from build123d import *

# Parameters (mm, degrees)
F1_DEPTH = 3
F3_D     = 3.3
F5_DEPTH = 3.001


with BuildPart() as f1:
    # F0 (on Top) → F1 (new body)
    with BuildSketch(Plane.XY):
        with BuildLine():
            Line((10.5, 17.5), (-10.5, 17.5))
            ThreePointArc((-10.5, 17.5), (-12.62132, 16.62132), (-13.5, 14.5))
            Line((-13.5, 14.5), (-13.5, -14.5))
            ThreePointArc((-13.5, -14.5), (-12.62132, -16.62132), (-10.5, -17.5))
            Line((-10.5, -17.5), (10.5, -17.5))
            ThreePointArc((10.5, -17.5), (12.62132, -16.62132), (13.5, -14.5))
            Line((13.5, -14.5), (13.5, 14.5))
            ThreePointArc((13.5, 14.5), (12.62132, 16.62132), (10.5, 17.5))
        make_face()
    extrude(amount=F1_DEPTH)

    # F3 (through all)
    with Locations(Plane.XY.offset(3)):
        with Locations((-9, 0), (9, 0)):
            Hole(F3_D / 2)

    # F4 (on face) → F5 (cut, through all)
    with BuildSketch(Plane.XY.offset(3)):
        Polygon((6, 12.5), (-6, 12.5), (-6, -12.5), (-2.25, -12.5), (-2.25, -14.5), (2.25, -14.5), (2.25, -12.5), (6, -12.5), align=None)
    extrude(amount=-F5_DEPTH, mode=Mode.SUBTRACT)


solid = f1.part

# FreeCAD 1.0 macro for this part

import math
import FreeCAD as App
import Part
import Sketcher
Q = App.Units.Quantity


def add_polygon(sketch, points):
    """Adds a closed chain of lines whose ends are joined by coincident constraints."""
    first, n = sketch.GeometryCount, len(points)
    for a, b in zip(points, points[1:] + points[:1]):
        sketch.addGeometry(Part.LineSegment(App.Vector(*a, 0), App.Vector(*b, 0)), False)
    for i in range(n):
        sketch.addConstraint(Sketcher.Constraint("Coincident", first + i, 2, first + (i + 1) % n, 1))

doc = App.newDocument("Part")
body = doc.addObject("PartDesign::Body", "Body")

# Sketch on XY plane
sketch1 = doc.addObject("Sketcher::SketchObject", "Sketch")
body.addObject(sketch1)
sketch1.AttachmentSupport = (doc.XY_Plane, [""])
sketch1.MapMode = "FlatFace"
sketch1.addGeometry([
    Part.LineSegment(App.Vector(10.5, 17.5, 0), App.Vector(-10.5, 17.5, 0)),  # 0
    Part.ArcOfCircle(Part.Circle(App.Vector(-10.5, 14.5, 0), App.Vector(0, 0, 1), 3), math.radians(90), math.radians(180)),  # 1
    Part.LineSegment(App.Vector(-13.5, 14.5, 0), App.Vector(-13.5, -14.5, 0)),  # 2
    Part.ArcOfCircle(Part.Circle(App.Vector(-10.5, -14.5, 0), App.Vector(0, 0, 1), 3), math.radians(-180), math.radians(-90)),  # 3
    Part.LineSegment(App.Vector(-10.5, -17.5, 0), App.Vector(10.5, -17.5, 0)),  # 4
    Part.ArcOfCircle(Part.Circle(App.Vector(10.5, -14.5, 0), App.Vector(0, 0, 1), 3), math.radians(-90), math.radians(0)),  # 5
    Part.LineSegment(App.Vector(13.5, -14.5, 0), App.Vector(13.5, 14.5, 0)),  # 6
    Part.ArcOfCircle(Part.Circle(App.Vector(10.5, 14.5, 0), App.Vector(0, 0, 1), 3), math.radians(0), math.radians(90)),  # 7
], False)
sketch1.addConstraint([
    Sketcher.Constraint("Tangent", 0, 2, 1, 1),
    Sketcher.Constraint("Tangent", 1, 2, 2, 1),
    Sketcher.Constraint("Tangent", 2, 2, 3, 1),
    Sketcher.Constraint("Tangent", 3, 2, 4, 1),
    Sketcher.Constraint("Tangent", 4, 2, 5, 1),
    Sketcher.Constraint("Tangent", 5, 2, 6, 1),
    Sketcher.Constraint("Tangent", 6, 2, 7, 1),
    Sketcher.Constraint("Tangent", 7, 2, 0, 1),
    Sketcher.Constraint("Horizontal", 0),
    Sketcher.Constraint("Vertical", 2),
    Sketcher.Constraint("Horizontal", 4),
    Sketcher.Constraint("Vertical", 6),
    Sketcher.Constraint("Equal", 1, 3),
    Sketcher.Constraint("Equal", 3, 5),
    Sketcher.Constraint("Equal", 5, 7),
    Sketcher.Constraint("Symmetric", 1, 3, 5, 3, -1, 1),
    Sketcher.Constraint("Radius", 1, Q("3.000001 mm")),
    Sketcher.Constraint("DistanceX", 0, 2, 0, 1, Q("21 mm")),
    Sketcher.Constraint("DistanceY", 2, 2, 2, 1, Q("29 mm")),
])
pad1 = doc.addObject("PartDesign::Pad", "Pad")
body.addObject(pad1)
pad1.Profile = sketch1
pad1.Length = 3

# Sketch on XY plane
sketch2 = doc.addObject("Sketcher::SketchObject", "Sketch001")
body.addObject(sketch2)
sketch2.AttachmentSupport = (doc.XY_Plane, [""])
sketch2.MapMode = "FlatFace"
sketch2.AttachmentOffset = App.Placement(App.Vector(0, 0, 3), App.Rotation())
sketch2.addGeometry([
    Part.Circle(App.Vector(-9, 0, 0), App.Vector(0, 0, 1), 1.6),
    Part.Circle(App.Vector(9, 0, 0), App.Vector(0, 0, 1), 1.6),
], False)
sketch2.addConstraint([
    Sketcher.Constraint("Equal", 0, 1),
    Sketcher.Constraint("Symmetric", 0, 3, 1, 3, -1, 1),
    Sketcher.Constraint("PointOnObject", 0, 3, -1),
    Sketcher.Constraint("Diameter", 0, Q("3.3 mm")),
    Sketcher.Constraint("DistanceX", 0, 3, -1, 1, Q("9 mm")),
])
doc.recompute()
hole = doc.addObject("PartDesign::Hole", "Hole")
body.addObject(hole)
hole.Profile = sketch2
hole.ThreadType = "None"
hole.Diameter = 3.3
hole.DepthType = "ThroughAll"

# Sketch on XY plane
sketch3 = doc.addObject("Sketcher::SketchObject", "Sketch002")
body.addObject(sketch3)
sketch3.AttachmentSupport = (doc.XY_Plane, [""])
sketch3.MapMode = "FlatFace"
sketch3.AttachmentOffset = App.Placement(App.Vector(0, 0, 3), App.Rotation())
add_polygon(sketch3, [(6, 12.5), (-6, 12.5), (-6, -12.5), (-2.2, -12.5), (-2.2, -14.5), (2.2, -14.5), (2.2, -12.5), (6, -12.5)])  # lines 0-7
sketch3.addConstraint([
    Sketcher.Constraint("Horizontal", 0),
    Sketcher.Constraint("Vertical", 1),
    Sketcher.Constraint("Horizontal", 2),
    Sketcher.Constraint("Vertical", 3),
    Sketcher.Constraint("Horizontal", 4),
    Sketcher.Constraint("Vertical", 5),
    Sketcher.Constraint("Horizontal", 6),
    Sketcher.Constraint("Vertical", 7),
    Sketcher.Constraint("Symmetric", 0, 2, 6, 2, -1, 1),
    Sketcher.Constraint("Symmetric", 2, 2, 5, 2, -2),
    Sketcher.Constraint("DistanceX", 0, 2, 0, 1, Q("12 mm")),
    Sketcher.Constraint("DistanceY", 1, 2, 1, 1, Q("25 mm")),
    Sketcher.Constraint("DistanceY", 3, 2, 3, 1, Q("2 mm")),
    Sketcher.Constraint("DistanceX", 4, 1, 4, 2, Q("4.5 mm")),
])
pocket1 = doc.addObject("PartDesign::Pocket", "Pocket")
body.addObject(pocket1)
pocket1.Profile = sketch3
pocket1.Type = "ThroughAll"

doc.recompute()
